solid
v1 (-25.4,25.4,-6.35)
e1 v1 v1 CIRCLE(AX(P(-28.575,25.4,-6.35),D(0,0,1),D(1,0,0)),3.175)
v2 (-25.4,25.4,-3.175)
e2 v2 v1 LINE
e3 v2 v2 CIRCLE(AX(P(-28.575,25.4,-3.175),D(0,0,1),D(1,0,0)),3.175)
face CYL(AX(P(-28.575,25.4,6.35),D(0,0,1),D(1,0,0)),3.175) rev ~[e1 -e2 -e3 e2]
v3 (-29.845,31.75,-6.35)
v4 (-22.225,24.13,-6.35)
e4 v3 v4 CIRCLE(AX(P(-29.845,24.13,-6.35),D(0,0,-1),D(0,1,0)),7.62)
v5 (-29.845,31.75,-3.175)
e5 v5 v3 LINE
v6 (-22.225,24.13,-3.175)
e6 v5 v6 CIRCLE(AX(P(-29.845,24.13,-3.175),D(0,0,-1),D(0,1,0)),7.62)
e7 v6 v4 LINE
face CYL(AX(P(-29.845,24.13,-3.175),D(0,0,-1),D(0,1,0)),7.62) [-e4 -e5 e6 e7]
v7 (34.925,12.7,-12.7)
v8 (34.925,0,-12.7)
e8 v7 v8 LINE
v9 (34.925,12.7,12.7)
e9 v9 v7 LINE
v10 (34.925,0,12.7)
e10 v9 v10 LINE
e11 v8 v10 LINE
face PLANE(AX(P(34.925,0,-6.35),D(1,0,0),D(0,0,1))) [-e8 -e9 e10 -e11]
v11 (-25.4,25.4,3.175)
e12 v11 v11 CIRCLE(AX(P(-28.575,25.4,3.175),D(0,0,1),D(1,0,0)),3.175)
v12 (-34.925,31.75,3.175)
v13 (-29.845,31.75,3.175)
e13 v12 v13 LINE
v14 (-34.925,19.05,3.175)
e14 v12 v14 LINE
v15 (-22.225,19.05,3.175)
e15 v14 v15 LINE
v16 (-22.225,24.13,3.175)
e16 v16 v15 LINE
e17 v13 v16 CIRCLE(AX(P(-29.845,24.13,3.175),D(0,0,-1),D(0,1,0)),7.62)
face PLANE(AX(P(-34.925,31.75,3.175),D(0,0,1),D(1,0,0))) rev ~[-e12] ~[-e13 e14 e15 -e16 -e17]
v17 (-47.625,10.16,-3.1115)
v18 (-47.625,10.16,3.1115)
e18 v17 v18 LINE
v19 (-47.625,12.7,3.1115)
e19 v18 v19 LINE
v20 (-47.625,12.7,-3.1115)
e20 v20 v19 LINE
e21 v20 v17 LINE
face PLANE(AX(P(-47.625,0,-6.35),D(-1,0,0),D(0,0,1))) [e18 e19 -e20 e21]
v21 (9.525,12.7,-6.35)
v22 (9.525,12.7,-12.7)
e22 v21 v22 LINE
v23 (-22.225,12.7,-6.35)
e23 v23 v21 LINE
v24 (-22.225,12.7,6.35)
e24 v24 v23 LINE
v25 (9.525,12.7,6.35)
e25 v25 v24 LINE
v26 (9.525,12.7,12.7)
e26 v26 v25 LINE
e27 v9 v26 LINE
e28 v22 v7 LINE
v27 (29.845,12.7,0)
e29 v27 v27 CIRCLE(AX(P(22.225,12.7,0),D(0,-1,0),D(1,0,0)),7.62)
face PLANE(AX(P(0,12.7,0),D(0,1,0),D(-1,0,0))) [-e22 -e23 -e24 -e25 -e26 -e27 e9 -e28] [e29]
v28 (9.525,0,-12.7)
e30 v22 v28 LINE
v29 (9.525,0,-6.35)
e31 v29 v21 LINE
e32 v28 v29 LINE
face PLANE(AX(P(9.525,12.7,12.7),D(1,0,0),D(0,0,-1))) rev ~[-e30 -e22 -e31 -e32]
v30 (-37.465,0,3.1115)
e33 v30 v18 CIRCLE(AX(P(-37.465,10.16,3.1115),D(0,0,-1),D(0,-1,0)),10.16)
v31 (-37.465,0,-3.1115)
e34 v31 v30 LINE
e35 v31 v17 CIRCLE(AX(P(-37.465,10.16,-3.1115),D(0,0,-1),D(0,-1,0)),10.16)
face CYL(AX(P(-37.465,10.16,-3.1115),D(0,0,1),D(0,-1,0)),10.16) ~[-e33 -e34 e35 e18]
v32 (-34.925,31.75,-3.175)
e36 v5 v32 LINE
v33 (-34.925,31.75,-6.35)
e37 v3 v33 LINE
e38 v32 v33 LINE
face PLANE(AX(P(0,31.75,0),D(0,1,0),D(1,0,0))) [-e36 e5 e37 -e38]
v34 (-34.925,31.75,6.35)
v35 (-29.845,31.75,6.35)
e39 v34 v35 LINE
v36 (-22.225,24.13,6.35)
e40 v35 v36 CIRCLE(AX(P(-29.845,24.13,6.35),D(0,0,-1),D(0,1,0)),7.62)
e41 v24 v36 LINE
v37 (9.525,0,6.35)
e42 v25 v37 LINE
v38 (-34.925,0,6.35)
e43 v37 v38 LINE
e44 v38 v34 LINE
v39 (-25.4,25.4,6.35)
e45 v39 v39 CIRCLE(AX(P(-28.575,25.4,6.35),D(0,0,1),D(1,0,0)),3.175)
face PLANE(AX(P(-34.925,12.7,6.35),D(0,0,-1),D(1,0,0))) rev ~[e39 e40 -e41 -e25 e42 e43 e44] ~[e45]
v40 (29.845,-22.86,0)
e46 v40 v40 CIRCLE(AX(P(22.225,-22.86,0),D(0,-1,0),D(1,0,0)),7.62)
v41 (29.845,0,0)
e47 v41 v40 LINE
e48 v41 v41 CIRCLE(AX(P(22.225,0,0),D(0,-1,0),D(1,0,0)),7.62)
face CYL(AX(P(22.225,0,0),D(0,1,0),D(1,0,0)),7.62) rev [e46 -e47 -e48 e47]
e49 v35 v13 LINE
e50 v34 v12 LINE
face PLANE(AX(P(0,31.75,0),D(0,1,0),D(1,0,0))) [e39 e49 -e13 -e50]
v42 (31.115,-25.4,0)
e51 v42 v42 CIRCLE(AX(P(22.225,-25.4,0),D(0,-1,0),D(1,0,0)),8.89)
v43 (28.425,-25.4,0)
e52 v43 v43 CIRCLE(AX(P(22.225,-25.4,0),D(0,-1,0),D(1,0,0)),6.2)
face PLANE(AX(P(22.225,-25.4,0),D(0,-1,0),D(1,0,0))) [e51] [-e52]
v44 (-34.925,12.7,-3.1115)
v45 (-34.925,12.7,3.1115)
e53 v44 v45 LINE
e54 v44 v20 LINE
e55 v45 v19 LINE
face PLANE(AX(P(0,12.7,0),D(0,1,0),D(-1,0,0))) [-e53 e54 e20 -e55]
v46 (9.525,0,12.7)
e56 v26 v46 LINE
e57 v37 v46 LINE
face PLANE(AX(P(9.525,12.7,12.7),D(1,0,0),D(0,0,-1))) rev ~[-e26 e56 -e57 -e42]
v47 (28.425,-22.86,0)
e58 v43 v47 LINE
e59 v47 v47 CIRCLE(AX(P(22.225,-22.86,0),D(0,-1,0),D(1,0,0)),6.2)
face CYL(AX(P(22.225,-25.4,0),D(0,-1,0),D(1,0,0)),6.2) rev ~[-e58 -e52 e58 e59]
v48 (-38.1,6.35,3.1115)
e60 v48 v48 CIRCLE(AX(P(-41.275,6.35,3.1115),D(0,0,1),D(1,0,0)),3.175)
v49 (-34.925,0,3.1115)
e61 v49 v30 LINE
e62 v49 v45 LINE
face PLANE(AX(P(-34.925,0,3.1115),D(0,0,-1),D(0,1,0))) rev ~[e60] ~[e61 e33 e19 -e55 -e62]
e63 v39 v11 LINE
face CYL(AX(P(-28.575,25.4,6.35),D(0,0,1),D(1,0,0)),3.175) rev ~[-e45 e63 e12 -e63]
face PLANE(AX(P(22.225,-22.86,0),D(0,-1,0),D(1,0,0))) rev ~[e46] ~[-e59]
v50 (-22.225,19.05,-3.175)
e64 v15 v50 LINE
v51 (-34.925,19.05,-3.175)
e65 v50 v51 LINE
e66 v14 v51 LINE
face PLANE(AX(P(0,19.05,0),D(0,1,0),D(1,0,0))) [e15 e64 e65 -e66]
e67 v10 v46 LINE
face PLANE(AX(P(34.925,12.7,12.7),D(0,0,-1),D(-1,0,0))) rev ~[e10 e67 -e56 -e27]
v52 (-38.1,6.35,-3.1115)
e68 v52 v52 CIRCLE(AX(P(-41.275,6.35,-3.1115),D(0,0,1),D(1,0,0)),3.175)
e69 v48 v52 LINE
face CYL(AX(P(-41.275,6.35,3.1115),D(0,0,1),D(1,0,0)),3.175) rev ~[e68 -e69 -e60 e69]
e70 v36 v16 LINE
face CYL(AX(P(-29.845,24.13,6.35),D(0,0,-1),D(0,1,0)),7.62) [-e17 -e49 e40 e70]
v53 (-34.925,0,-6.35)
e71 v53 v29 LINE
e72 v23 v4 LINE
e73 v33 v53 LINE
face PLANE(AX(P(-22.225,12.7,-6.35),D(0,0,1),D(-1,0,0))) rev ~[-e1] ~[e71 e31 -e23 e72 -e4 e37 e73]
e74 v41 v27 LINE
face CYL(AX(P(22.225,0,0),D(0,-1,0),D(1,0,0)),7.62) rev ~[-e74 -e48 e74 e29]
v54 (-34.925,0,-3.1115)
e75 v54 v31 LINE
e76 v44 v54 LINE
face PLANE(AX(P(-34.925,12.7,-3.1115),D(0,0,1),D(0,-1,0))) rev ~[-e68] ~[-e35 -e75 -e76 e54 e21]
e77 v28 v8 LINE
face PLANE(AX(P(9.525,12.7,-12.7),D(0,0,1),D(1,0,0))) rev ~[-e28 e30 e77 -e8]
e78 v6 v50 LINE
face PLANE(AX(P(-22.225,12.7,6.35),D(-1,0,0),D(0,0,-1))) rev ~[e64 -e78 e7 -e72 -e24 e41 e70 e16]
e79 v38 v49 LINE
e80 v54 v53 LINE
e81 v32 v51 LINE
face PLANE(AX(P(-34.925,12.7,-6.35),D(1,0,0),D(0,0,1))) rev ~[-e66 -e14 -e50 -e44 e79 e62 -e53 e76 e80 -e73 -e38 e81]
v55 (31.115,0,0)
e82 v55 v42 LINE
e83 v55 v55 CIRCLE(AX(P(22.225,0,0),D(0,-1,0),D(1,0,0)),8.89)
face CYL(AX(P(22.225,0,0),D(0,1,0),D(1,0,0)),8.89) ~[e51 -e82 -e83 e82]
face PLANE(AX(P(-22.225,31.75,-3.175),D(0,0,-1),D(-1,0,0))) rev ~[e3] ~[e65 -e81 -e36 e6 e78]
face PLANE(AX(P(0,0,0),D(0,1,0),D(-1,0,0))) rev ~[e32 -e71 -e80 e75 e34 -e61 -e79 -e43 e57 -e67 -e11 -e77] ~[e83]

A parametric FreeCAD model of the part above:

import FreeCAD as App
import Part
import Sketcher
from FreeCAD import Vector
Q = App.Units.Quantity


def edges_at(feature, points):
    """Names of the edges that pass closest to the given points."""
    edges = feature.Shape.Edges
    near = lambda p: min(range(len(edges)), key=lambda i: edges[i].distToShape(Part.Vertex(*p))[0])
    return sorted({f"Edge{near(p) + 1}" for p in points})

doc = App.newDocument("Part")
body = doc.addObject("PartDesign::Body", "Body")

sketch1 = body.newObject("Sketcher::SketchObject", "Sketch")
sketch1.AttachmentSupport = (doc.getObject("XZ_Plane"), [""])
sketch1.MapMode = "FlatFace"
sketch1.addGeometry(Part.LineSegment(Vector(-35, 6, 0), Vector(35, 6, 0)), False)
sketch1.addGeometry(Part.LineSegment(Vector(35, 6, 0), Vector(35, -6, 0)), False)
sketch1.addGeometry(Part.LineSegment(Vector(35, -6, 0), Vector(-35, -6, 0)), False)
sketch1.addGeometry(Part.LineSegment(Vector(-35, -6, 0), Vector(-35, 6, 0)), False)
sketch1.addConstraint(Sketcher.Constraint("Coincident", 0, 2, 1, 1))
sketch1.addConstraint(Sketcher.Constraint("Coincident", 1, 2, 2, 1))
sketch1.addConstraint(Sketcher.Constraint("Coincident", 2, 2, 3, 1))
sketch1.addConstraint(Sketcher.Constraint("Coincident", 3, 2, 0, 1))
sketch1.addConstraint(Sketcher.Constraint("Horizontal", 0))
sketch1.addConstraint(Sketcher.Constraint("Vertical", 1))
sketch1.addConstraint(Sketcher.Constraint("Horizontal", 2))
sketch1.addConstraint(Sketcher.Constraint("Vertical", 3))
sketch1.addConstraint(Sketcher.Constraint("Symmetric", 0, 2, 2, 2, -1, 1))
sketch1.addConstraint(Sketcher.Constraint("DistanceY", 1, 2, 1, 1, Q("0.5 in")))
sketch1.addConstraint(Sketcher.Constraint("DistanceX", 0, 1, 0, 2, Q("2.75 in")))
pad1 = body.newObject("PartDesign::Pad", "Pad")
pad1.Profile = sketch1
pad1.Length = Q("0.5 in")
pad1.Reversed = True

sketch2 = body.newObject("Sketcher::SketchObject", "Sketch001")
sketch2.AttachmentSupport = (doc.getObject("YZ_Plane"), [""])
sketch2.MapMode = "FlatFace"
sketch2.AttachmentOffset = App.Placement(Vector(0, 0, -1.375 * 25.4), App.Rotation())
sketch2.addGeometry(Part.LineSegment(Vector(13, 3, 0), Vector(13, -3, 0)), False)
sketch2.addGeometry(Part.LineSegment(Vector(13, -3, 0), Vector(0, -3, 0)), False)
sketch2.addGeometry(Part.LineSegment(Vector(0, -3, 0), Vector(0, 3, 0)), False)
sketch2.addGeometry(Part.LineSegment(Vector(0, 3, 0), Vector(13, 3, 0)), False)
sketch2.addConstraint(Sketcher.Constraint("Coincident", 0, 2, 1, 1))
sketch2.addConstraint(Sketcher.Constraint("Coincident", 1, 2, 2, 1))
sketch2.addConstraint(Sketcher.Constraint("Coincident", 2, 2, 3, 1))
sketch2.addConstraint(Sketcher.Constraint("Coincident", 3, 2, 0, 1))
sketch2.addConstraint(Sketcher.Constraint("Vertical", 0))
sketch2.addConstraint(Sketcher.Constraint("Horizontal", 1))
sketch2.addConstraint(Sketcher.Constraint("Vertical", 2))
sketch2.addConstraint(Sketcher.Constraint("Horizontal", 3))
sketch2.addConstraint(Sketcher.Constraint("Symmetric", 1, 2, 2, 2, -1, 1))
sketch2.addConstraint(Sketcher.Constraint("DistanceX", 1, 2, 1, 1, Q("0.5 in")))
sketch2.addConstraint(Sketcher.Constraint("DistanceY", 0, 2, 0, 1, Q("0.245 in")))
pad2 = body.newObject("PartDesign::Pad", "Pad001")
pad2.Profile = sketch2
pad2.Length = Q("0.5 in")
pad2.Reversed = True
doc.recompute()

fillet = body.newObject("PartDesign::Fillet", "Fillet")
fillet.Base = (pad2, edges_at(pad2, [(-47.625, 0, 0)]))
fillet.Radius = Q("0.4 in")

sketch3 = body.newObject("Sketcher::SketchObject", "Sketch002")
sketch3.AttachmentSupport = (doc.getObject("XY_Plane"), [""])
sketch3.MapMode = "FlatFace"
sketch3.AttachmentOffset = App.Placement(Vector(0, 0, 0.1225 * 25.4), App.Rotation())
sketch3.addGeometry(Part.Circle(Vector(-41.3, 6.3, 0), Vector(0, 0, 1), 3.2), False)
sketch3.addConstraint(Sketcher.Constraint("Diameter", 0, Q("0.25 in")))
sketch3.addConstraint(Sketcher.Constraint("DistanceY", -1, 1, 0, 3, Q("0.25 in")))
sketch3.addConstraint(Sketcher.Constraint("DistanceX", 0, 3, -1, 1, Q("1.625 in")))
pocket1 = body.newObject("PartDesign::Pocket", "Pocket")
pocket1.Profile = sketch3
pocket1.Length = Q("0.5 in")

sketch4 = body.newObject("Sketcher::SketchObject", "Sketch003")
sketch4.AttachmentSupport = (doc.getObject("XZ_Plane"), [""])
sketch4.MapMode = "FlatFace"
sketch4.AttachmentOffset = App.Placement(Vector(0, 0, -0.5 * 25.4), App.Rotation())
sketch4.addGeometry(Part.LineSegment(Vector(-35, -6, 0), Vector(-35, 6, 0)), False)
sketch4.addGeometry(Part.LineSegment(Vector(-35, 6, 0), Vector(-22, 6, 0)), False)
sketch4.addGeometry(Part.LineSegment(Vector(-22, 6, 0), Vector(-22, -6, 0)), False)
sketch4.addGeometry(Part.LineSegment(Vector(-22, -6, 0), Vector(-35, -6, 0)), False)
sketch4.addConstraint(Sketcher.Constraint("Coincident", 0, 2, 1, 1))
sketch4.addConstraint(Sketcher.Constraint("Coincident", 1, 2, 2, 1))
sketch4.addConstraint(Sketcher.Constraint("Coincident", 2, 2, 3, 1))
sketch4.addConstraint(Sketcher.Constraint("Coincident", 3, 2, 0, 1))
sketch4.addConstraint(Sketcher.Constraint("Vertical", 0))
sketch4.addConstraint(Sketcher.Constraint("Horizontal", 1))
sketch4.addConstraint(Sketcher.Constraint("Vertical", 2))
sketch4.addConstraint(Sketcher.Constraint("Horizontal", 3))
sketch4.addConstraint(Sketcher.Constraint("Equal", 3, 0))
sketch4.addConstraint(Sketcher.Constraint("DistanceX", 1, 1, 1, 2, Q("0.5 in")))
sketch4.addConstraint(Sketcher.Constraint("DistanceY", -1, 1, 0, 2, Q("0.25 in")))
sketch4.addConstraint(Sketcher.Constraint("DistanceX", 0, 2, -1, 1, Q("1.375 in")))
pad3 = body.newObject("PartDesign::Pad", "Pad002")
pad3.Profile = sketch4
pad3.Length = Q("0.75 in")
pad3.Reversed = True

sketch5 = body.newObject("Sketcher::SketchObject", "Sketch004")
sketch5.AttachmentSupport = (doc.getObject("XZ_Plane"), [""])
sketch5.MapMode = "FlatFace"
sketch5.AttachmentOffset = App.Placement(Vector(0, 0, -1.25 * 25.4), App.Rotation())
sketch5.addGeometry(Part.LineSegment(Vector(-35, -3, 0), Vector(-35, 3, 0)), False)
sketch5.addGeometry(Part.LineSegment(Vector(-35, 3, 0), Vector(-22, 3, 0)), False)
sketch5.addGeometry(Part.LineSegment(Vector(-22, 3, 0), Vector(-22, -3, 0)), False)
sketch5.addGeometry(Part.LineSegment(Vector(-22, -3, 0), Vector(-35, -3, 0)), False)
sketch5.addConstraint(Sketcher.Constraint("Coincident", 0, 2, 1, 1))
sketch5.addConstraint(Sketcher.Constraint("Coincident", 1, 2, 2, 1))
sketch5.addConstraint(Sketcher.Constraint("Coincident", 2, 2, 3, 1))
sketch5.addConstraint(Sketcher.Constraint("Coincident", 3, 2, 0, 1))
sketch5.addConstraint(Sketcher.Constraint("Vertical", 0))
sketch5.addConstraint(Sketcher.Constraint("Horizontal", 1))
sketch5.addConstraint(Sketcher.Constraint("Vertical", 2))
sketch5.addConstraint(Sketcher.Constraint("Horizontal", 3))
sketch5.addConstraint(Sketcher.Constraint("DistanceY", 0, 1, 0, 2, Q("0.25 in")))
sketch5.addConstraint(Sketcher.Constraint("DistanceX", 1, 1, 1, 2, Q("0.5 in")))
sketch5.addConstraint(Sketcher.Constraint("DistanceY", -1, 1, 0, 2, Q("0.125 in")))
sketch5.addConstraint(Sketcher.Constraint("DistanceX", 0, 2, -1, 1, Q("1.375 in")))
pocket2 = body.newObject("PartDesign::Pocket", "Pocket001")
pocket2.Profile = sketch5
pocket2.Length = Q("0.5 in")
pocket2.Reversed = True

sketch6 = body.newObject("Sketcher::SketchObject", "Sketch005")
sketch6.AttachmentSupport = (doc.getObject("XY_Plane"), [""])
sketch6.MapMode = "FlatFace"
sketch6.AttachmentOffset = App.Placement(Vector(0, 0, 0.25 * 25.4), App.Rotation())
sketch6.addGeometry(Part.Circle(Vector(-28.6, 25.4, 0), Vector(0, 0, 1), 3.2), False)
sketch6.addConstraint(Sketcher.Constraint("Diameter", 0, Q("0.25 in")))
sketch6.addConstraint(Sketcher.Constraint("DistanceY", -1, 1, 0, 3, Q("1 in")))
sketch6.addConstraint(Sketcher.Constraint("DistanceX", 0, 3, -1, 1, Q("1.125 in")))
pocket3 = body.newObject("PartDesign::Pocket", "Pocket002")
pocket3.Profile = sketch6
pocket3.Length = Q("0.5 in")

sketch7 = body.newObject("Sketcher::SketchObject", "Sketch006")
sketch7.AttachmentSupport = (doc.getObject("XZ_Plane"), [""])
sketch7.MapMode = "FlatFace"
sketch7.AttachmentOffset = App.Placement(Vector(0, 0, -0.5 * 25.4), App.Rotation())
sketch7.addGeometry(Part.LineSegment(Vector(10, 13, 0), Vector(35, 13, 0)), False)
sketch7.addGeometry(Part.LineSegment(Vector(35, 13, 0), Vector(35, -13, 0)), False)
sketch7.addGeometry(Part.LineSegment(Vector(35, -13, 0), Vector(10, -13, 0)), False)
sketch7.addGeometry(Part.LineSegment(Vector(10, -13, 0), Vector(10, 13, 0)), False)
sketch7.addConstraint(Sketcher.Constraint("Coincident", 0, 2, 1, 1))
sketch7.addConstraint(Sketcher.Constraint("Coincident", 1, 2, 2, 1))
sketch7.addConstraint(Sketcher.Constraint("Coincident", 2, 2, 3, 1))
sketch7.addConstraint(Sketcher.Constraint("Coincident", 3, 2, 0, 1))
sketch7.addConstraint(Sketcher.Constraint("Horizontal", 0))
sketch7.addConstraint(Sketcher.Constraint("Vertical", 1))
sketch7.addConstraint(Sketcher.Constraint("Horizontal", 2))
sketch7.addConstraint(Sketcher.Constraint("Vertical", 3))
sketch7.addConstraint(Sketcher.Constraint("Equal", 2, 1))
sketch7.addConstraint(Sketcher.Constraint("DistanceX", 0, 1, 0, 2, Q("1 in")))
sketch7.addConstraint(Sketcher.Constraint("DistanceY", -1, 1, 0, 2, Q("0.5 in")))
sketch7.addConstraint(Sketcher.Constraint("DistanceX", -1, 1, 0, 2, Q("1.375 in")))
pad4 = body.newObject("PartDesign::Pad", "Pad003")
pad4.Profile = sketch7
pad4.Length = Q("0.5 in")

sketch8 = body.newObject("Sketcher::SketchObject", "Sketch007")
sketch8.AttachmentSupport = (doc.getObject("XZ_Plane"), [""])
sketch8.MapMode = "FlatFace"
sketch8.addGeometry(Part.Circle(Vector(22, 0, 0), Vector(0, 0, 1), 9), False)
sketch8.addGeometry(Part.Circle(Vector(22, 0, 0), Vector(0, 0, 1), 8), False)
sketch8.addConstraint(Sketcher.Constraint("Coincident", 1, 3, 0, 3))
sketch8.addConstraint(Sketcher.Constraint("PointOnObject", 0, 3, -1))
sketch8.addConstraint(Sketcher.Constraint("Diameter", 0, Q("0.7 in")))
sketch8.addConstraint(Sketcher.Constraint("Diameter", 1, Q("0.6 in")))
sketch8.addConstraint(Sketcher.Constraint("DistanceX", -1, 1, 0, 3, Q("0.875 in")))
pad5 = body.newObject("PartDesign::Pad", "Pad004")
pad5.Profile = sketch8
pad5.Length = Q("1 in")

sketch9 = body.newObject("Sketcher::SketchObject", "Sketch008")
sketch9.AttachmentSupport = (doc.getObject("XZ_Plane"), [""])
sketch9.MapMode = "FlatFace"
sketch9.AttachmentOffset = App.Placement(Vector(0, 0, 1 * 25.4), App.Rotation())
sketch9.addGeometry(Part.Circle(Vector(22, 0, 0), Vector(0, 0, 1), 8), False)
sketch9.addGeometry(Part.Circle(Vector(22, 0, 0), Vector(0, 0, 1), 6), False)
sketch9.addConstraint(Sketcher.Constraint("Coincident", 1, 3, 0, 3))
sketch9.addConstraint(Sketcher.Constraint("PointOnObject", 0, 3, -1))
sketch9.addConstraint(Sketcher.Constraint("Diameter", 0, Q("0.6 in")))
sketch9.addConstraint(Sketcher.Constraint("Diameter", 1, Q("0.4882 in")))
sketch9.addConstraint(Sketcher.Constraint("DistanceX", -1, 1, 0, 3, Q("0.875 in")))
pad6 = body.newObject("PartDesign::Pad", "Pad005")
pad6.Profile = sketch9
pad6.Length = Q("0.1 in")
pad6.Reversed = True

sketch10 = body.newObject("Sketcher::SketchObject", "Sketch009")
sketch10.AttachmentSupport = (doc.getObject("XZ_Plane"), [""])
sketch10.MapMode = "FlatFace"
sketch10.addGeometry(Part.Circle(Vector(22, 0, 0), Vector(0, 0, 1), 8), False)
sketch10.addConstraint(Sketcher.Constraint("PointOnObject", 0, 3, -1))
sketch10.addConstraint(Sketcher.Constraint("Diameter", 0, Q("0.6 in")))
sketch10.addConstraint(Sketcher.Constraint("DistanceX", -1, 1, 0, 3, Q("0.875 in")))
pocket4 = body.newObject("PartDesign::Pocket", "Pocket003")
pocket4.Profile = sketch10
pocket4.Length = Q("1 in")
doc.recompute()

fillet2 = body.newObject("PartDesign::Fillet", "Fillet001")
fillet2.Base = (pocket4, edges_at(pocket4, [(-22.225, 31.75, 4.763), (-22.225, 31.75, -4.763)]))
fillet2.Radius = Q("0.3 in")

doc.recompute()
